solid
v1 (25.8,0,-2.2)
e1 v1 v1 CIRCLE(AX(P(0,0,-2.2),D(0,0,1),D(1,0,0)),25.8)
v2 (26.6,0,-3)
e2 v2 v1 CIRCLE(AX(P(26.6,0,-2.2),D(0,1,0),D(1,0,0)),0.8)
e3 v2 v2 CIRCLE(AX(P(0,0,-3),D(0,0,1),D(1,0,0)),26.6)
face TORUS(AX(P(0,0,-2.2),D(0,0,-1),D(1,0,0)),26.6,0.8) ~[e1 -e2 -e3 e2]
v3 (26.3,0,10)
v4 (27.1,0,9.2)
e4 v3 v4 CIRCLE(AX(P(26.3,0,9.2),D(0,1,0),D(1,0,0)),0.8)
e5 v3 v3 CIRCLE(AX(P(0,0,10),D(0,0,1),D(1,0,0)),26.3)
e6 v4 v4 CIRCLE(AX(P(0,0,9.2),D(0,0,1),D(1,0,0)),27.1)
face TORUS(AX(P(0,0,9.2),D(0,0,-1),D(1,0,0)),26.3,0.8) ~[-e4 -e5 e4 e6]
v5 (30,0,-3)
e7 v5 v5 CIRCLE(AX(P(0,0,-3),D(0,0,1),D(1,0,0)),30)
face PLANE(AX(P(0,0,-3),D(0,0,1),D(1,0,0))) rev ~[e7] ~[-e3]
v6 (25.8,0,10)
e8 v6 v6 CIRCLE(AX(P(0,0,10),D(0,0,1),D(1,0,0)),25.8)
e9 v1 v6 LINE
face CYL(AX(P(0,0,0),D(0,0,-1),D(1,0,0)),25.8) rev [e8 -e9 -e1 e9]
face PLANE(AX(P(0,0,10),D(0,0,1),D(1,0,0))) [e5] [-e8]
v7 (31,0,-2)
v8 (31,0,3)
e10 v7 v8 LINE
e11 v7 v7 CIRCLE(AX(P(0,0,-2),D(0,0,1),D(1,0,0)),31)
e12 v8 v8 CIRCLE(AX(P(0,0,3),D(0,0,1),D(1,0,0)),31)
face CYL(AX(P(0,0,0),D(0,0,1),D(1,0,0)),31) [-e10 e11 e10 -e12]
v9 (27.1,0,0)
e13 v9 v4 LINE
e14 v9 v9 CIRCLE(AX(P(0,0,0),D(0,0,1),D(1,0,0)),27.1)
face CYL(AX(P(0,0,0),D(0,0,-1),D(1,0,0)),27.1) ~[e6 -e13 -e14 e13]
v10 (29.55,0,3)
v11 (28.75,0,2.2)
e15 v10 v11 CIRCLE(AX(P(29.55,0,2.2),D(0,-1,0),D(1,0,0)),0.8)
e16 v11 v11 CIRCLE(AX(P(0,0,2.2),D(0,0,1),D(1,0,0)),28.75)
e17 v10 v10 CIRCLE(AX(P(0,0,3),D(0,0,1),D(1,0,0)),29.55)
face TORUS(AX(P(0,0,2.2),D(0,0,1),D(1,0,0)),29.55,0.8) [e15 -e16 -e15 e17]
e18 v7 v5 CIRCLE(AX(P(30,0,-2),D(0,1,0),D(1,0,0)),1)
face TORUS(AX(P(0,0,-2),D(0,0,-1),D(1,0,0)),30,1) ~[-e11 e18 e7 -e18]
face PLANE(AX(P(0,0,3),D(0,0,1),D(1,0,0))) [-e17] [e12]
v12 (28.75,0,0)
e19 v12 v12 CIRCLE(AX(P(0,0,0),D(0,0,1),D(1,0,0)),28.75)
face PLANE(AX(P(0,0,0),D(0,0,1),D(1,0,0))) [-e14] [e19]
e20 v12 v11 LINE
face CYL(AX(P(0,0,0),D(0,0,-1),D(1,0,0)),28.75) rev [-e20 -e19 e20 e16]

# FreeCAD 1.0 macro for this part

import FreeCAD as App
import Part
import Sketcher
from FreeCAD import Vector


def edges_at(feature, points):
    """Names of the edges that pass closest to the given points."""
    edges = feature.Shape.Edges
    near = lambda p: min(range(len(edges)), key=lambda i: edges[i].distToShape(Part.Vertex(*p))[0])
    return sorted({f"Edge{near(p) + 1}" for p in points})

doc = App.newDocument("Part")
body = doc.addObject("PartDesign::Body", "Body")

# Sketch on XY plane
sketch1 = body.newObject("Sketcher::SketchObject", "Sketch")
sketch1.AttachmentSupport = (doc.getObject("XY_Plane"), [""])
sketch1.MapMode = "FlatFace"
sketch1.addGeometry(Part.Circle(Vector(0, 0, 0), Vector(0, 0, 1), 31), False)
sketch1.addGeometry(Part.Circle(Vector(0, 0, 0), Vector(0, 0, 1), 26), False)
sketch1.addConstraint(Sketcher.Constraint("Coincident", 0, 3, -1, 1))
sketch1.addConstraint(Sketcher.Constraint("Coincident", 1, 3, -1, 1))
sketch1.addConstraint(Sketcher.Constraint("Diameter", 0, 62.0))
sketch1.addConstraint(Sketcher.Constraint("Diameter", 1, 51.6))
pad1 = body.newObject("PartDesign::Pad", "Pad")
pad1.Profile = sketch1
pad1.Length = 3
pad1.Reversed = True

# Sketch on XY plane
sketch2 = body.newObject("Sketcher::SketchObject", "Sketch001")
sketch2.AttachmentSupport = (doc.getObject("XY_Plane"), [""])
sketch2.MapMode = "FlatFace"
sketch2.addGeometry(Part.Circle(Vector(0, 0, 0), Vector(0, 0, 1), 27), False)
sketch2.addGeometry(Part.Circle(Vector(0, 0, 0), Vector(0, 0, 1), 26), False)
sketch2.addConstraint(Sketcher.Constraint("Coincident", 0, 3, -1, 1))
sketch2.addConstraint(Sketcher.Constraint("Coincident", 1, 3, -1, 1))
sketch2.addConstraint(Sketcher.Constraint("Diameter", 0, 54.2))
sketch2.addConstraint(Sketcher.Constraint("Diameter", 1, 51.6))
pad2 = body.newObject("PartDesign::Pad", "Pad001")
pad2.Profile = sketch2
pad2.Length = 10

# Sketch on XY plane
sketch3 = body.newObject("Sketcher::SketchObject", "Sketch002")
sketch3.AttachmentSupport = (doc.getObject("XY_Plane"), [""])
sketch3.MapMode = "FlatFace"
sketch3.addGeometry(Part.Circle(Vector(0, 0, 0), Vector(0, 0, 1), 31), False)
sketch3.addGeometry(Part.Circle(Vector(0, 0, 0), Vector(0, 0, 1), 29), False)
sketch3.addConstraint(Sketcher.Constraint("Coincident", 0, 3, -1, 1))
sketch3.addConstraint(Sketcher.Constraint("Coincident", 1, 3, -1, 1))
sketch3.addConstraint(Sketcher.Constraint("Diameter", 0, 62.0))
sketch3.addConstraint(Sketcher.Constraint("Diameter", 1, 57.5))
pad3 = body.newObject("PartDesign::Pad", "Pad002")
pad3.Profile = sketch3
pad3.Length = 3

# Sketch on XY plane
sketch4 = body.newObject("Sketcher::SketchObject", "Sketch003")
sketch4.AttachmentSupport = (doc.getObject("XY_Plane"), [""])
sketch4.MapMode = "FlatFace"
sketch4.addGeometry(Part.Circle(Vector(0, 0, 0), Vector(0, 0, 1), 26), False)
sketch4.addConstraint(Sketcher.Constraint("Coincident", 0, 3, -1, 1))
sketch4.addConstraint(Sketcher.Constraint("Diameter", 0, 51.6))
pocket1 = body.newObject("PartDesign::Pocket", "Pocket")
pocket1.Profile = sketch4
pocket1.Length = 25
pocket1.Reversed = True
doc.recompute()

fillet = body.newObject("PartDesign::Fillet", "Fillet")
fillet.Base = (pocket1, edges_at(pocket1, [(-25.8, 0, -3), (-28.75, 0, 3), (-27.1, 0, 10)]))
fillet.Radius = 0.8
doc.recompute()

fillet2 = body.newObject("PartDesign::Fillet", "Fillet001")
fillet2.Base = (fillet, edges_at(fillet, [(-31, 0, -3)]))
fillet2.Radius = 1

doc.recompute()
